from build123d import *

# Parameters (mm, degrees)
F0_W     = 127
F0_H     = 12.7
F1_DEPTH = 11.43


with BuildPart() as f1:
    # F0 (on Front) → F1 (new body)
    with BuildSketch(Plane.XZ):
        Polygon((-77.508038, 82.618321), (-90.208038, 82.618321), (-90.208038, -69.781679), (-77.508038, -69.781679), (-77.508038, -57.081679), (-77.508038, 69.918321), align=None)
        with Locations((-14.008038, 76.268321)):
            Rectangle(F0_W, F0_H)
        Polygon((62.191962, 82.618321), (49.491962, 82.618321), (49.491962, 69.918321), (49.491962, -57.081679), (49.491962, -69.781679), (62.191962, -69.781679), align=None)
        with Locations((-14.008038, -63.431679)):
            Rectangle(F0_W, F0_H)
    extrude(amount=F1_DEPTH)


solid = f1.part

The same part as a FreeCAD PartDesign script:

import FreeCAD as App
import Part
import Sketcher
from FreeCAD import Vector
Q = App.Units.Quantity

doc = App.newDocument("Part")
body = doc.addObject("PartDesign::Body", "Body")

sketch1 = body.newObject("Sketcher::SketchObject", "Sketch")
sketch1.AttachmentSupport = (doc.getObject("XZ_Plane"), [""])
sketch1.MapMode = "FlatFace"
sketch1.addGeometry([
    Part.LineSegment(Vector(-90, 83, 0), Vector(-90, -70, 0)),
    Part.LineSegment(Vector(-90, -70, 0), Vector(62, -70, 0)),
    Part.LineSegment(Vector(62, -70, 0), Vector(62, 83, 0)),
    Part.LineSegment(Vector(62, 83, 0), Vector(-90, 83, 0)),
    Part.LineSegment(Vector(-78, -57, 0), Vector(-78, 70, 0)),
    Part.LineSegment(Vector(-78, 70, 0), Vector(49, 70, 0)),
    Part.LineSegment(Vector(49, 70, 0), Vector(49, -57, 0)),
    Part.LineSegment(Vector(49, -57, 0), Vector(-78, -57, 0)),
], False)
sketch1.addConstraint([
    Sketcher.Constraint("Coincident", 0, 2, 1, 1),
    Sketcher.Constraint("Coincident", 1, 2, 2, 1),
    Sketcher.Constraint("Coincident", 2, 2, 3, 1),
    Sketcher.Constraint("Coincident", 3, 2, 0, 1),
    Sketcher.Constraint("Coincident", 4, 2, 5, 1),
    Sketcher.Constraint("Coincident", 5, 2, 6, 1),
    Sketcher.Constraint("Coincident", 6, 2, 7, 1),
    Sketcher.Constraint("Coincident", 7, 2, 4, 1),
    Sketcher.Constraint("Vertical", 0),
    Sketcher.Constraint("Horizontal", 1),
    Sketcher.Constraint("Vertical", 2),
    Sketcher.Constraint("Horizontal", 3),
    Sketcher.Constraint("Vertical", 4),
    Sketcher.Constraint("Horizontal", 5),
    Sketcher.Constraint("Vertical", 6),
    Sketcher.Constraint("Horizontal", 7),
    Sketcher.Constraint("Equal", 3, 0),
    Sketcher.Constraint("Equal", 7, 4),
    Sketcher.Constraint("DistanceX", 1, 1, 1, 2, Q("6 in")),
    Sketcher.Constraint("DistanceX", 5, 1, 5, 2, Q("5 in")),
    Sketcher.Constraint("DistanceX", 3, 2, 4, 2, Q("0.5 in")),
    Sketcher.Constraint("DistanceY", 4, 2, 3, 2, Q("0.5 in")),
    Sketcher.Constraint("DistanceX", 0, 2, -1, 1, Q("90.208038 mm")),
    Sketcher.Constraint("DistanceY", 0, 2, -1, 1, Q("69.781679 mm")),
])
pad1 = body.newObject("PartDesign::Pad", "Pad")
pad1.Profile = sketch1
pad1.Length = Q("0.45 in")

doc.recompute()
